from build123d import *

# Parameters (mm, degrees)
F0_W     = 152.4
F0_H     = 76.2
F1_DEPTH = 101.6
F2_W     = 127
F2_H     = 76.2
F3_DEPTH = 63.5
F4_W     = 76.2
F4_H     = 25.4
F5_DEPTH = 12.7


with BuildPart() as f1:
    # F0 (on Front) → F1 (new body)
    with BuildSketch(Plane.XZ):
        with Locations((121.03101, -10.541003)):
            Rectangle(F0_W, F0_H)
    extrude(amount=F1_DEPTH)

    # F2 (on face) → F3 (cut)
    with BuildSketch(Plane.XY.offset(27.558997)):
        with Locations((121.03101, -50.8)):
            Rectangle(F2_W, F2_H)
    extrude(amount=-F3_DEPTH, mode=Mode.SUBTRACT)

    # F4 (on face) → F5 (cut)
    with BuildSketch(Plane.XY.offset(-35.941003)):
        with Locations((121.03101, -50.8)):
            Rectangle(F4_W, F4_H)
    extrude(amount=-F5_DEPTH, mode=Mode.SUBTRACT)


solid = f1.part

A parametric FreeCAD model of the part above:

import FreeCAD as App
import Part
import Sketcher
from FreeCAD import Vector
Q = App.Units.Quantity


def add_polygon(sketch, points):
    """Adds a closed chain of lines whose ends are joined by coincident constraints."""
    first, n = sketch.GeometryCount, len(points)
    for a, b in zip(points, points[1:] + points[:1]):
        sketch.addGeometry(Part.LineSegment(App.Vector(*a, 0), App.Vector(*b, 0)), False)
    for i in range(n):
        sketch.addConstraint(Sketcher.Constraint("Coincident", first + i, 2, first + (i + 1) % n, 1))

doc = App.newDocument("Part")
body = doc.addObject("PartDesign::Body", "Body")

# Sketch on XZ plane
sketch1 = doc.addObject("Sketcher::SketchObject", "Sketch")
body.addObject(sketch1)
sketch1.AttachmentSupport = (doc.XZ_Plane, [""])
sketch1.MapMode = "FlatFace"
add_polygon(sketch1, [(45, 28), (45, -49), (197, -49), (197, 28)])  # lines 0-3
sketch1.addConstraint([
    Sketcher.Constraint("Vertical", 0),
    Sketcher.Constraint("Horizontal", 1),
    Sketcher.Constraint("Vertical", 2),
    Sketcher.Constraint("Horizontal", 3),
    Sketcher.Constraint("DistanceX", 1, 1, 1, 2, Q("6 in")),
    Sketcher.Constraint("DistanceY", 0, 2, 0, 1, Q("3 in")),
    Sketcher.Constraint("DistanceY", 0, 2, -1, 1, Q("1.9150001 in")),
    Sketcher.Constraint("DistanceX", -1, 1, 0, 2, Q("44.83101 mm")),
])
pad1 = doc.addObject("PartDesign::Pad", "Pad")
body.addObject(pad1)
pad1.Profile = sketch1
pad1.Length = Q("4 in")

# Sketch on XY plane
sketch2 = doc.addObject("Sketcher::SketchObject", "Sketch001")
body.addObject(sketch2)
sketch2.AttachmentSupport = (doc.XY_Plane, [""])
sketch2.MapMode = "FlatFace"
sketch2.AttachmentOffset = App.Placement(Vector(0, 0, 1.0849999 * 25.4), App.Rotation())
add_polygon(sketch2, [(58, -13), (58, -89), (185, -89), (185, -13)])  # lines 0-3
sketch2.addConstraint([
    Sketcher.Constraint("Vertical", 0),
    Sketcher.Constraint("Horizontal", 1),
    Sketcher.Constraint("Vertical", 2),
    Sketcher.Constraint("Horizontal", 3),
    Sketcher.Constraint("DistanceX", 1, 1, 1, 2, Q("5 in")),
    Sketcher.Constraint("DistanceY", 0, 2, 0, 1, Q("3 in")),
    Sketcher.Constraint("DistanceY", 0, 2, -1, 1, Q("3.5 in")),
    Sketcher.Constraint("DistanceX", -1, 1, 0, 2, Q("57.53101 mm")),
])
pocket1 = doc.addObject("PartDesign::Pocket", "Pocket")
body.addObject(pocket1)
pocket1.Profile = sketch2
pocket1.Length = Q("2.5 in")

# Sketch on XY plane
sketch3 = doc.addObject("Sketcher::SketchObject", "Sketch002")
body.addObject(sketch3)
sketch3.AttachmentSupport = (doc.XY_Plane, [""])
sketch3.MapMode = "FlatFace"
sketch3.AttachmentOffset = App.Placement(Vector(0, 0, -1.4150001 * 25.4), App.Rotation())
add_polygon(sketch3, [(83, -38), (83, -64), (159, -64), (159, -38)])  # lines 0-3
sketch3.addConstraint([
    Sketcher.Constraint("Vertical", 0),
    Sketcher.Constraint("Horizontal", 1),
    Sketcher.Constraint("Vertical", 2),
    Sketcher.Constraint("Horizontal", 3),
    Sketcher.Constraint("DistanceX", 1, 1, 1, 2, Q("3 in")),
    Sketcher.Constraint("DistanceY", 0, 2, 0, 1, Q("1 in")),
    Sketcher.Constraint("DistanceY", 0, 2, -1, 1, Q("2.5 in")),
    Sketcher.Constraint("DistanceX", -1, 1, 0, 2, Q("82.93101 mm")),
])
pocket2 = doc.addObject("PartDesign::Pocket", "Pocket001")
body.addObject(pocket2)
pocket2.Profile = sketch3
pocket2.Length = Q("0.5 in")

doc.recompute()
